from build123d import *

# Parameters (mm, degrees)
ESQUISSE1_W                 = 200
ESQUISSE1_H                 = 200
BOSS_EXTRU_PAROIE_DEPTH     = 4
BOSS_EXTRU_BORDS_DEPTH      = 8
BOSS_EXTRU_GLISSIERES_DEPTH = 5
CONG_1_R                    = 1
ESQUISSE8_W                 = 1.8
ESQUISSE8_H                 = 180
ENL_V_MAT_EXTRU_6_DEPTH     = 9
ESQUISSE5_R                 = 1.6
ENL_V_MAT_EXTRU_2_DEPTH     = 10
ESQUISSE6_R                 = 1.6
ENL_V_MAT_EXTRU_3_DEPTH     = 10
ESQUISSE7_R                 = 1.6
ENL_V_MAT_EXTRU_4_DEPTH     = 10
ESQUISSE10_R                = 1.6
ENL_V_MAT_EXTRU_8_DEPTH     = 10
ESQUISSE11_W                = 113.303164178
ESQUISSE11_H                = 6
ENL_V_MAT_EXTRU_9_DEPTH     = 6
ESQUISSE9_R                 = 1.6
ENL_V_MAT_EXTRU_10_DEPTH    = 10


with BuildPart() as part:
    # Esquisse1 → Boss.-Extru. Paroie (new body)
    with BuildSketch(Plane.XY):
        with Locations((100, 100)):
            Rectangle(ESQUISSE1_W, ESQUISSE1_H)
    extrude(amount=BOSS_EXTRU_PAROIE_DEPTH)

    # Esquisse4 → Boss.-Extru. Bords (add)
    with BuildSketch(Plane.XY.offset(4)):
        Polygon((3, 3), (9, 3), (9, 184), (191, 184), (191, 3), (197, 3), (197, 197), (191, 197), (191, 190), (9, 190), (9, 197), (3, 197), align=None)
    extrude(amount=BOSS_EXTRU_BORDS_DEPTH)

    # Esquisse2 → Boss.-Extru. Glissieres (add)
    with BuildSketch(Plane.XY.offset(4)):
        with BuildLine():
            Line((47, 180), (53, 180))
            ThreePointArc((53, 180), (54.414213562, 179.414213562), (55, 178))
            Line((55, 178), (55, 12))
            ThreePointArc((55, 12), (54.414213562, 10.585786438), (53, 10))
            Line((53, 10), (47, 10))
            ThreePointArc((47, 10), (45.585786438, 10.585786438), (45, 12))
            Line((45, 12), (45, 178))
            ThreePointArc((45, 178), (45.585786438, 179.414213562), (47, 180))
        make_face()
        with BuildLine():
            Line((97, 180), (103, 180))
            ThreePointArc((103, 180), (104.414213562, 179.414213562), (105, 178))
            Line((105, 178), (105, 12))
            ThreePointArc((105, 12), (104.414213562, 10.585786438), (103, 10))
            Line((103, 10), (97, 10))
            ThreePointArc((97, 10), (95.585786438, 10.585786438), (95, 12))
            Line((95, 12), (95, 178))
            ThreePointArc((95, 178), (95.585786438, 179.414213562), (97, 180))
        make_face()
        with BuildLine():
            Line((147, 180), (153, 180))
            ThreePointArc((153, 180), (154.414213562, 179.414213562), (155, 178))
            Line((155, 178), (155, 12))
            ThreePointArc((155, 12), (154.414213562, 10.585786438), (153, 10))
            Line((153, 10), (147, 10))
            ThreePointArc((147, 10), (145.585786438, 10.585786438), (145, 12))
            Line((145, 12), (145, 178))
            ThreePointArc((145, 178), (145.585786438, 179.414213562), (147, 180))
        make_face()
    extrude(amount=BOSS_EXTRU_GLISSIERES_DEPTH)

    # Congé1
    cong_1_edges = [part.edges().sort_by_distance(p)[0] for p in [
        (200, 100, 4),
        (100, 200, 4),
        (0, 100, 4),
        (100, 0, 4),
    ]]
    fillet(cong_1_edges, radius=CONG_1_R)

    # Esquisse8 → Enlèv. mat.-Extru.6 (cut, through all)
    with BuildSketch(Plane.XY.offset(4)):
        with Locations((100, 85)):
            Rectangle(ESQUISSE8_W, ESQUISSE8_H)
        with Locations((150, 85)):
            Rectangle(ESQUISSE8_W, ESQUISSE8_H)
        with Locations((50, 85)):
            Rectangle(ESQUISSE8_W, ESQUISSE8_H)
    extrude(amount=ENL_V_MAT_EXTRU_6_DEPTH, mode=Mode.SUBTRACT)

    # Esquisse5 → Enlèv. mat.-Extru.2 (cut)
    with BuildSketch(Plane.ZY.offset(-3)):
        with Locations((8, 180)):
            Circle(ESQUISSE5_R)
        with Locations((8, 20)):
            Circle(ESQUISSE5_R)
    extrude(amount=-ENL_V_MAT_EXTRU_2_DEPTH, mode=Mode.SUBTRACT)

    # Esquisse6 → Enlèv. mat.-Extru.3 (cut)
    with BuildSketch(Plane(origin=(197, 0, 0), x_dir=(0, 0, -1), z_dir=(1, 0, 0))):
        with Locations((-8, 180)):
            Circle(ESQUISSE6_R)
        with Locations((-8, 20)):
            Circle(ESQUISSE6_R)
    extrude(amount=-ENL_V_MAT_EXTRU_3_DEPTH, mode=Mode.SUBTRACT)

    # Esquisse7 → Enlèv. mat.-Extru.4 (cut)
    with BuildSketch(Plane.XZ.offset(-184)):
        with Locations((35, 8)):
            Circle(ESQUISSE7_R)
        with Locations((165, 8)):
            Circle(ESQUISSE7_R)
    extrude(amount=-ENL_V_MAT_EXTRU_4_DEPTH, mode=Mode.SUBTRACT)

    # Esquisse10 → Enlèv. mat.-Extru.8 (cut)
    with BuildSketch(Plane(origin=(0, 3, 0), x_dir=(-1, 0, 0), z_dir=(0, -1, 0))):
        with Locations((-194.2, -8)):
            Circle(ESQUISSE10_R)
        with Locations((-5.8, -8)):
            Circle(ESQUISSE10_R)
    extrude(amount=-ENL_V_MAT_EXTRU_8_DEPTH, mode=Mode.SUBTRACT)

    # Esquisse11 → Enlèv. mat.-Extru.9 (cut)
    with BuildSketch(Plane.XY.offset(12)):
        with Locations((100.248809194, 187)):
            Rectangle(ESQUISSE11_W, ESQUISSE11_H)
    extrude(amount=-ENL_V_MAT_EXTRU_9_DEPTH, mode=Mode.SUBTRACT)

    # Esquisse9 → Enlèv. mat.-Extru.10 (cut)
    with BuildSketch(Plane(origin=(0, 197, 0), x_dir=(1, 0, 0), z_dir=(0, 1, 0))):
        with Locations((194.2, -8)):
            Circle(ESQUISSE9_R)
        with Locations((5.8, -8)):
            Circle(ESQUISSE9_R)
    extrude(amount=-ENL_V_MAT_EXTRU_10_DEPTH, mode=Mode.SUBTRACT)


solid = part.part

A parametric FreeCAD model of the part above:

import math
import FreeCAD as App
import Part
import Sketcher


def edges_at(feature, points):
    """Names of the edges that pass closest to the given points."""
    edges = feature.Shape.Edges
    near = lambda p: min(range(len(edges)), key=lambda i: edges[i].distToShape(Part.Vertex(*p))[0])
    return sorted({f"Edge{near(p) + 1}" for p in points})


def add_polygon(sketch, points):
    """Adds a closed chain of lines whose ends are joined by coincident constraints."""
    first, n = sketch.GeometryCount, len(points)
    for a, b in zip(points, points[1:] + points[:1]):
        sketch.addGeometry(Part.LineSegment(App.Vector(*a, 0), App.Vector(*b, 0)), False)
    for i in range(n):
        sketch.addConstraint(Sketcher.Constraint("Coincident", first + i, 2, first + (i + 1) % n, 1))

doc = App.newDocument("Part")
body = doc.addObject("PartDesign::Body", "Body")

# Sketch on XY plane
sketch1 = body.newObject("Sketcher::SketchObject", "Sketch")
sketch1.AttachmentSupport = (doc.getObject("XY_Plane"), [""])
sketch1.MapMode = "FlatFace"
add_polygon(sketch1, [(0, 200), (0, 0), (200, 0), (200, 200)])  # lines 0-3
sketch1.addConstraint(Sketcher.Constraint("Vertical", 0))
sketch1.addConstraint(Sketcher.Constraint("Horizontal", 1))
sketch1.addConstraint(Sketcher.Constraint("Vertical", 2))
sketch1.addConstraint(Sketcher.Constraint("Horizontal", 3))
sketch1.addConstraint(Sketcher.Constraint("Coincident", 0, 2, -1, 1))
sketch1.addConstraint(Sketcher.Constraint("Equal", 3, 0))
sketch1.addConstraint(Sketcher.Constraint("DistanceX", 1, 1, 1, 2, 200.0))
pad1 = body.newObject("PartDesign::Pad", "Pad")
pad1.Profile = sketch1
pad1.Length = 4

# Sketch on XY plane
sketch2 = body.newObject("Sketcher::SketchObject", "Sketch001")
sketch2.AttachmentSupport = (doc.getObject("XY_Plane"), [""])
sketch2.MapMode = "FlatFace"
sketch2.AttachmentOffset = App.Placement(App.Vector(0, 0, 4), App.Rotation())
add_polygon(sketch2, [(3, 3), (9, 3), (9, 184), (191, 184), (191, 3), (197, 3), (197, 197), (191, 197), (191, 190), (9, 190), (9, 197), (3, 197)])  # lines 0-11
sketch2.addConstraint(Sketcher.Constraint("Horizontal", 0))
sketch2.addConstraint(Sketcher.Constraint("Vertical", 1))
sketch2.addConstraint(Sketcher.Constraint("Horizontal", 2))
sketch2.addConstraint(Sketcher.Constraint("Vertical", 3))
sketch2.addConstraint(Sketcher.Constraint("Horizontal", 4))
sketch2.addConstraint(Sketcher.Constraint("Vertical", 5))
sketch2.addConstraint(Sketcher.Constraint("Horizontal", 6))
sketch2.addConstraint(Sketcher.Constraint("Vertical", 7))
sketch2.addConstraint(Sketcher.Constraint("Horizontal", 8))
sketch2.addConstraint(Sketcher.Constraint("Vertical", 9))
sketch2.addConstraint(Sketcher.Constraint("Horizontal", 10))
sketch2.addConstraint(Sketcher.Constraint("Vertical", 11))
sketch2.addConstraint(Sketcher.Constraint("Horizontal", 0, 2, 3, 2))
sketch2.addConstraint(Sketcher.Constraint("Horizontal", 6, 2, 9, 2))
sketch2.addConstraint(Sketcher.Constraint("Vertical", 3, 2, 6, 2))
sketch2.addConstraint(Sketcher.Constraint("Vertical", 1, 2, 8, 2))
sketch2.addConstraint(Sketcher.Constraint("Equal", 0, 4))
sketch2.addConstraint(Sketcher.Constraint("DistanceX", 0, 1, 0, 2, 6.0))
sketch2.addConstraint(Sketcher.Constraint("DistanceX", 2, 1, 2, 2, 182.0))
sketch2.addConstraint(Sketcher.Constraint("DistanceY", 1, 1, 1, 2, 181.0))
sketch2.addConstraint(Sketcher.Constraint("DistanceY", 5, 1, 5, 2, 194.0))
sketch2.addConstraint(Sketcher.Constraint("DistanceY", 7, 2, 7, 1, 7.0))
sketch2.addConstraint(Sketcher.Constraint("DistanceX", -1, 1, 0, 2, 9.0))
sketch2.addConstraint(Sketcher.Constraint("DistanceY", -1, 1, 0, 2, 3.0))
pad2 = body.newObject("PartDesign::Pad", "Pad001")
pad2.Profile = sketch2
pad2.Length = 8

# Sketch on XY plane
sketch3 = body.newObject("Sketcher::SketchObject", "Sketch002")
sketch3.AttachmentSupport = (doc.getObject("XY_Plane"), [""])
sketch3.MapMode = "FlatFace"
sketch3.AttachmentOffset = App.Placement(App.Vector(0, 0, 4), App.Rotation())
sketch3.addGeometry(Part.LineSegment(App.Vector(53, 180, 0), App.Vector(47, 180, 0)), False)
sketch3.addGeometry(Part.ArcOfCircle(Part.Circle(App.Vector(47, 178, 0), App.Vector(0, 0, 1), 2), math.radians(90), math.radians(180)), False)
sketch3.addGeometry(Part.LineSegment(App.Vector(45, 178, 0), App.Vector(45, 12, 0)), False)
sketch3.addGeometry(Part.ArcOfCircle(Part.Circle(App.Vector(47, 12, 0), App.Vector(0, 0, 1), 2), math.radians(-180), math.radians(-90)), False)
sketch3.addGeometry(Part.LineSegment(App.Vector(47, 10, 0), App.Vector(53, 10, 0)), False)
sketch3.addGeometry(Part.ArcOfCircle(Part.Circle(App.Vector(53, 12, 0), App.Vector(0, 0, 1), 2), math.radians(-90), math.radians(0)), False)
sketch3.addGeometry(Part.LineSegment(App.Vector(55, 12, 0), App.Vector(55, 178, 0)), False)
sketch3.addGeometry(Part.ArcOfCircle(Part.Circle(App.Vector(53, 178, 0), App.Vector(0, 0, 1), 2), math.radians(0), math.radians(90)), False)
sketch3.addGeometry(Part.LineSegment(App.Vector(103, 180, 0), App.Vector(97, 180, 0)), False)
sketch3.addGeometry(Part.ArcOfCircle(Part.Circle(App.Vector(97, 178, 0), App.Vector(0, 0, 1), 2), math.radians(90), math.radians(180)), False)
sketch3.addGeometry(Part.LineSegment(App.Vector(95, 178, 0), App.Vector(95, 12, 0)), False)
sketch3.addGeometry(Part.ArcOfCircle(Part.Circle(App.Vector(97, 12, 0), App.Vector(0, 0, 1), 2), math.radians(-180), math.radians(-90)), False)
sketch3.addGeometry(Part.LineSegment(App.Vector(97, 10, 0), App.Vector(103, 10, 0)), False)
sketch3.addGeometry(Part.ArcOfCircle(Part.Circle(App.Vector(103, 12, 0), App.Vector(0, 0, 1), 2), math.radians(-90), math.radians(0)), False)
sketch3.addGeometry(Part.LineSegment(App.Vector(105, 12, 0), App.Vector(105, 178, 0)), False)
sketch3.addGeometry(Part.ArcOfCircle(Part.Circle(App.Vector(103, 178, 0), App.Vector(0, 0, 1), 2), math.radians(0), math.radians(90)), False)
sketch3.addGeometry(Part.LineSegment(App.Vector(153, 180, 0), App.Vector(147, 180, 0)), False)
sketch3.addGeometry(Part.ArcOfCircle(Part.Circle(App.Vector(147, 178, 0), App.Vector(0, 0, 1), 2), math.radians(90), math.radians(180)), False)
sketch3.addGeometry(Part.LineSegment(App.Vector(145, 178, 0), App.Vector(145, 12, 0)), False)
sketch3.addGeometry(Part.ArcOfCircle(Part.Circle(App.Vector(147, 12, 0), App.Vector(0, 0, 1), 2), math.radians(-180), math.radians(-90)), False)
sketch3.addGeometry(Part.LineSegment(App.Vector(147, 10, 0), App.Vector(153, 10, 0)), False)
sketch3.addGeometry(Part.ArcOfCircle(Part.Circle(App.Vector(153, 12, 0), App.Vector(0, 0, 1), 2), math.radians(-90), math.radians(0)), False)
sketch3.addGeometry(Part.LineSegment(App.Vector(155, 12, 0), App.Vector(155, 178, 0)), False)
sketch3.addGeometry(Part.ArcOfCircle(Part.Circle(App.Vector(153, 178, 0), App.Vector(0, 0, 1), 2), math.radians(0), math.radians(90)), False)
sketch3.addConstraint(Sketcher.Constraint("Tangent", 0, 2, 1, 1))
sketch3.addConstraint(Sketcher.Constraint("Tangent", 1, 2, 2, 1))
sketch3.addConstraint(Sketcher.Constraint("Tangent", 2, 2, 3, 1))
sketch3.addConstraint(Sketcher.Constraint("Tangent", 3, 2, 4, 1))
sketch3.addConstraint(Sketcher.Constraint("Tangent", 4, 2, 5, 1))
sketch3.addConstraint(Sketcher.Constraint("Tangent", 5, 2, 6, 1))
sketch3.addConstraint(Sketcher.Constraint("Tangent", 6, 2, 7, 1))
sketch3.addConstraint(Sketcher.Constraint("Tangent", 7, 2, 0, 1))
sketch3.addConstraint(Sketcher.Constraint("Tangent", 8, 2, 9, 1))
sketch3.addConstraint(Sketcher.Constraint("Tangent", 9, 2, 10, 1))
sketch3.addConstraint(Sketcher.Constraint("Tangent", 10, 2, 11, 1))
sketch3.addConstraint(Sketcher.Constraint("Tangent", 11, 2, 12, 1))
sketch3.addConstraint(Sketcher.Constraint("Tangent", 12, 2, 13, 1))
sketch3.addConstraint(Sketcher.Constraint("Tangent", 13, 2, 14, 1))
sketch3.addConstraint(Sketcher.Constraint("Tangent", 14, 2, 15, 1))
sketch3.addConstraint(Sketcher.Constraint("Tangent", 15, 2, 8, 1))
sketch3.addConstraint(Sketcher.Constraint("Tangent", 16, 2, 17, 1))
sketch3.addConstraint(Sketcher.Constraint("Tangent", 17, 2, 18, 1))
sketch3.addConstraint(Sketcher.Constraint("Tangent", 18, 2, 19, 1))
sketch3.addConstraint(Sketcher.Constraint("Tangent", 19, 2, 20, 1))
sketch3.addConstraint(Sketcher.Constraint("Tangent", 20, 2, 21, 1))
sketch3.addConstraint(Sketcher.Constraint("Tangent", 21, 2, 22, 1))
sketch3.addConstraint(Sketcher.Constraint("Tangent", 22, 2, 23, 1))
sketch3.addConstraint(Sketcher.Constraint("Tangent", 23, 2, 16, 1))
sketch3.addConstraint(Sketcher.Constraint("Horizontal", 0))
sketch3.addConstraint(Sketcher.Constraint("Vertical", 2))
sketch3.addConstraint(Sketcher.Constraint("Horizontal", 4))
sketch3.addConstraint(Sketcher.Constraint("Vertical", 6))
sketch3.addConstraint(Sketcher.Constraint("Horizontal", 8))
sketch3.addConstraint(Sketcher.Constraint("Vertical", 10))
sketch3.addConstraint(Sketcher.Constraint("Horizontal", 12))
sketch3.addConstraint(Sketcher.Constraint("Vertical", 14))
sketch3.addConstraint(Sketcher.Constraint("Horizontal", 16))
sketch3.addConstraint(Sketcher.Constraint("Vertical", 18))
sketch3.addConstraint(Sketcher.Constraint("Horizontal", 20))
sketch3.addConstraint(Sketcher.Constraint("Vertical", 22))
sketch3.addConstraint(Sketcher.Constraint("Equal", 1, 3))
sketch3.addConstraint(Sketcher.Constraint("Equal", 3, 5))
sketch3.addConstraint(Sketcher.Constraint("Equal", 5, 7))
sketch3.addConstraint(Sketcher.Constraint("Equal", 7, 9))
sketch3.addConstraint(Sketcher.Constraint("Equal", 9, 11))
sketch3.addConstraint(Sketcher.Constraint("Equal", 11, 13))
sketch3.addConstraint(Sketcher.Constraint("Equal", 13, 15))
sketch3.addConstraint(Sketcher.Constraint("Equal", 15, 17))
sketch3.addConstraint(Sketcher.Constraint("Equal", 17, 19))
sketch3.addConstraint(Sketcher.Constraint("Equal", 19, 21))
sketch3.addConstraint(Sketcher.Constraint("Equal", 21, 23))
sketch3.addConstraint(Sketcher.Constraint("Horizontal", 7, 3, 9, 3))
sketch3.addConstraint(Sketcher.Constraint("Horizontal", 5, 3, 11, 3))
sketch3.addConstraint(Sketcher.Constraint("Horizontal", 15, 3, 17, 3))
sketch3.addConstraint(Sketcher.Constraint("Horizontal", 13, 3, 19, 3))
sketch3.addConstraint(Sketcher.Constraint("Equal", 4, 8))
sketch3.addConstraint(Sketcher.Constraint("Equal", 12, 16))
sketch3.addConstraint(Sketcher.Constraint("Radius", 1, 2.0))
sketch3.addConstraint(Sketcher.Constraint("DistanceX", 0, 2, 0, 1, 6.0))
sketch3.addConstraint(Sketcher.Constraint("DistanceY", 2, 2, 2, 1, 166.0))
sketch3.addConstraint(Sketcher.Constraint("DistanceX", -1, 1, 1, 3, 47.0))
sketch3.addConstraint(Sketcher.Constraint("DistanceY", -1, 1, 1, 3, 178.0))
sketch3.addConstraint(Sketcher.Constraint("DistanceX", -1, 1, 9, 3, 97.0))
sketch3.addConstraint(Sketcher.Constraint("DistanceX", -1, 1, 17, 3, 147.0))
pad3 = body.newObject("PartDesign::Pad", "Pad002")
pad3.Profile = sketch3
pad3.Length = 5
doc.recompute()

fillet = body.newObject("PartDesign::Fillet", "Fillet")
fillet.Base = (pad3, edges_at(pad3, [
    (200, 100, 4),
    (100, 200, 4),
    (0, 100, 4),
    (100, 0, 4),
]))
fillet.Radius = 1

# Sketch on XY plane
sketch4 = body.newObject("Sketcher::SketchObject", "Sketch003")
sketch4.AttachmentSupport = (doc.getObject("XY_Plane"), [""])
sketch4.MapMode = "FlatFace"
sketch4.AttachmentOffset = App.Placement(App.Vector(0, 0, 4), App.Rotation())
add_polygon(sketch4, [(99.1, 175), (99.1, -5), (100.9, -5), (100.9, 175)])  # lines 0-3
add_polygon(sketch4, [(149.1, 175), (149.1, -5), (150.9, -5), (150.9, 175)])  # lines 4-7
add_polygon(sketch4, [(49.1, 175), (49.1, -5), (50.9, -5), (50.9, 175)])  # lines 8-11
sketch4.addConstraint(Sketcher.Constraint("Vertical", 0))
sketch4.addConstraint(Sketcher.Constraint("Horizontal", 1))
sketch4.addConstraint(Sketcher.Constraint("Vertical", 2))
sketch4.addConstraint(Sketcher.Constraint("Horizontal", 3))
sketch4.addConstraint(Sketcher.Constraint("Vertical", 4))
sketch4.addConstraint(Sketcher.Constraint("Horizontal", 5))
sketch4.addConstraint(Sketcher.Constraint("Vertical", 6))
sketch4.addConstraint(Sketcher.Constraint("Horizontal", 7))
sketch4.addConstraint(Sketcher.Constraint("Vertical", 8))
sketch4.addConstraint(Sketcher.Constraint("Horizontal", 9))
sketch4.addConstraint(Sketcher.Constraint("Vertical", 10))
sketch4.addConstraint(Sketcher.Constraint("Horizontal", 11))
sketch4.addConstraint(Sketcher.Constraint("Horizontal", 1, 2, 4, 2))
sketch4.addConstraint(Sketcher.Constraint("Horizontal", 3, 2, 6, 2))
sketch4.addConstraint(Sketcher.Constraint("Horizontal", 5, 2, 8, 2))
sketch4.addConstraint(Sketcher.Constraint("Horizontal", 7, 2, 10, 2))
sketch4.addConstraint(Sketcher.Constraint("Equal", 3, 5))
sketch4.addConstraint(Sketcher.Constraint("Equal", 7, 9))
sketch4.addConstraint(Sketcher.Constraint("DistanceY", 0, 2, 0, 1, 180.0))
sketch4.addConstraint(Sketcher.Constraint("DistanceX", 1, 1, 1, 2, 1.8))
sketch4.addConstraint(Sketcher.Constraint("DistanceY", 0, 2, -1, 1, 5.0))
sketch4.addConstraint(Sketcher.Constraint("DistanceX", 0, 2, 4, 2, 50.0))
sketch4.addConstraint(Sketcher.Constraint("DistanceX", 8, 2, 0, 2, 50.0))
sketch4.addConstraint(Sketcher.Constraint("DistanceX", -1, 1, 0, 2, 99.1))
pocket1 = body.newObject("PartDesign::Pocket", "Pocket")
pocket1.Profile = sketch4
pocket1.Type = "ThroughAll"
pocket1.Reversed = True

# Sketch on YZ plane
sketch5 = body.newObject("Sketcher::SketchObject", "Sketch004")
sketch5.AttachmentSupport = (doc.getObject("YZ_Plane"), [""])
sketch5.MapMode = "FlatFace"
sketch5.AttachmentOffset = App.Placement(App.Vector(0, 0, 3), App.Rotation())
sketch5.addGeometry(Part.Circle(App.Vector(180, 8, 0), App.Vector(0, 0, 1), 1.6), False)
sketch5.addGeometry(Part.Circle(App.Vector(20, 8, 0), App.Vector(0, 0, 1), 1.6), False)
sketch5.addConstraint(Sketcher.Constraint("Equal", 0, 1))
sketch5.addConstraint(Sketcher.Constraint("Horizontal", 0, 3, 1, 3))
sketch5.addConstraint(Sketcher.Constraint("Diameter", 0, 3.2))
sketch5.addConstraint(Sketcher.Constraint("DistanceX", -1, 1, 0, 3, 180.0))
sketch5.addConstraint(Sketcher.Constraint("DistanceY", -1, 1, 0, 3, 8.0))
sketch5.addConstraint(Sketcher.Constraint("DistanceX", -1, 1, 1, 3, 20.0))
pocket2 = body.newObject("PartDesign::Pocket", "Pocket001")
pocket2.Profile = sketch5
pocket2.Length = 10
pocket2.Reversed = True

# Sketch on YZ plane
sketch6 = body.newObject("Sketcher::SketchObject", "Sketch005")
sketch6.AttachmentSupport = (doc.getObject("YZ_Plane"), [""])
sketch6.MapMode = "FlatFace"
sketch6.AttachmentOffset = App.Placement(App.Vector(0, 0, 197), App.Rotation())
sketch6.addGeometry(Part.Circle(App.Vector(180, 8, 0), App.Vector(0, 0, 1), 1.6), False)
sketch6.addGeometry(Part.Circle(App.Vector(20, 8, 0), App.Vector(0, 0, 1), 1.6), False)
sketch6.addConstraint(Sketcher.Constraint("Equal", 0, 1))
sketch6.addConstraint(Sketcher.Constraint("Horizontal", 0, 3, 1, 3))
sketch6.addConstraint(Sketcher.Constraint("Diameter", 0, 3.2))
sketch6.addConstraint(Sketcher.Constraint("DistanceX", -1, 1, 0, 3, 180.0))
sketch6.addConstraint(Sketcher.Constraint("DistanceY", -1, 1, 0, 3, 8.0))
sketch6.addConstraint(Sketcher.Constraint("DistanceX", -1, 1, 1, 3, 20.0))
pocket3 = body.newObject("PartDesign::Pocket", "Pocket002")
pocket3.Profile = sketch6
pocket3.Length = 10

# Sketch on XZ plane
sketch7 = body.newObject("Sketcher::SketchObject", "Sketch006")
sketch7.AttachmentSupport = (doc.getObject("XZ_Plane"), [""])
sketch7.MapMode = "FlatFace"
sketch7.AttachmentOffset = App.Placement(App.Vector(0, 0, -184), App.Rotation())
sketch7.addGeometry(Part.Circle(App.Vector(35, 8, 0), App.Vector(0, 0, 1), 1.6), False)
sketch7.addGeometry(Part.Circle(App.Vector(165, 8, 0), App.Vector(0, 0, 1), 1.6), False)
sketch7.addConstraint(Sketcher.Constraint("Equal", 0, 1))
sketch7.addConstraint(Sketcher.Constraint("Horizontal", 0, 3, 1, 3))
sketch7.addConstraint(Sketcher.Constraint("Diameter", 0, 3.2))
sketch7.addConstraint(Sketcher.Constraint("DistanceX", -1, 1, 0, 3, 35.0))
sketch7.addConstraint(Sketcher.Constraint("DistanceY", -1, 1, 0, 3, 8.0))
sketch7.addConstraint(Sketcher.Constraint("DistanceX", -1, 1, 1, 3, 165.0))
pocket4 = body.newObject("PartDesign::Pocket", "Pocket003")
pocket4.Profile = sketch7
pocket4.Length = 10

# Sketch on XZ plane
sketch8 = body.newObject("Sketcher::SketchObject", "Sketch007")
sketch8.AttachmentSupport = (doc.getObject("XZ_Plane"), [""])
sketch8.MapMode = "FlatFace"
sketch8.AttachmentOffset = App.Placement(App.Vector(0, 0, -3), App.Rotation())
sketch8.addGeometry(Part.Circle(App.Vector(194.2, 8, 0), App.Vector(0, 0, 1), 1.6), False)
sketch8.addGeometry(Part.Circle(App.Vector(5.8, 8, 0), App.Vector(0, 0, 1), 1.6), False)
sketch8.addConstraint(Sketcher.Constraint("Equal", 0, 1))
sketch8.addConstraint(Sketcher.Constraint("Horizontal", 0, 3, 1, 3))
sketch8.addConstraint(Sketcher.Constraint("Diameter", 0, 3.2))
sketch8.addConstraint(Sketcher.Constraint("DistanceY", -1, 1, 0, 3, 8.0))
sketch8.addConstraint(Sketcher.Constraint("DistanceX", -1, 1, 0, 3, 194.2))
sketch8.addConstraint(Sketcher.Constraint("DistanceX", -1, 1, 1, 3, 5.8))
pocket5 = body.newObject("PartDesign::Pocket", "Pocket004")
pocket5.Profile = sketch8
pocket5.Length = 10

# Sketch on XY plane
sketch9 = body.newObject("Sketcher::SketchObject", "Sketch008")
sketch9.AttachmentSupport = (doc.getObject("XY_Plane"), [""])
sketch9.MapMode = "FlatFace"
sketch9.AttachmentOffset = App.Placement(App.Vector(0, 0, 12), App.Rotation())
add_polygon(sketch9, [(43.597227, 190), (43.597227, 184), (156.900391, 184), (156.900391, 190)])  # lines 0-3
sketch9.addConstraint(Sketcher.Constraint("Vertical", 0))
sketch9.addConstraint(Sketcher.Constraint("Horizontal", 1))
sketch9.addConstraint(Sketcher.Constraint("Vertical", 2))
sketch9.addConstraint(Sketcher.Constraint("Horizontal", 3))
sketch9.addConstraint(Sketcher.Constraint("DistanceY", 0, 2, 0, 1, 6.0))
sketch9.addConstraint(Sketcher.Constraint("DistanceY", -1, 1, 0, 2, 184.0))
sketch9.addConstraint(Sketcher.Constraint("DistanceX", 1, 1, 1, 2, 113.303164))
sketch9.addConstraint(Sketcher.Constraint("DistanceX", -1, 1, 1, 2, 156.900391))
pocket6 = body.newObject("PartDesign::Pocket", "Pocket005")
pocket6.Profile = sketch9
pocket6.Length = 6

# Sketch on XZ plane
sketch10 = body.newObject("Sketcher::SketchObject", "Sketch009")
sketch10.AttachmentSupport = (doc.getObject("XZ_Plane"), [""])
sketch10.MapMode = "FlatFace"
sketch10.AttachmentOffset = App.Placement(App.Vector(0, 0, -197), App.Rotation())
sketch10.addGeometry(Part.Circle(App.Vector(194.2, 8, 0), App.Vector(0, 0, 1), 1.6), False)
sketch10.addGeometry(Part.Circle(App.Vector(5.8, 8, 0), App.Vector(0, 0, 1), 1.6), False)
sketch10.addConstraint(Sketcher.Constraint("Equal", 0, 1))
sketch10.addConstraint(Sketcher.Constraint("Horizontal", 0, 3, 1, 3))
sketch10.addConstraint(Sketcher.Constraint("Diameter", 0, 3.2))
sketch10.addConstraint(Sketcher.Constraint("DistanceY", -1, 1, 0, 3, 8.0))
sketch10.addConstraint(Sketcher.Constraint("DistanceX", -1, 1, 0, 3, 194.2))
sketch10.addConstraint(Sketcher.Constraint("DistanceX", -1, 1, 1, 3, 5.8))
pocket7 = body.newObject("PartDesign::Pocket", "Pocket006")
pocket7.Profile = sketch10
pocket7.Length = 10
pocket7.Reversed = True

doc.recompute()
